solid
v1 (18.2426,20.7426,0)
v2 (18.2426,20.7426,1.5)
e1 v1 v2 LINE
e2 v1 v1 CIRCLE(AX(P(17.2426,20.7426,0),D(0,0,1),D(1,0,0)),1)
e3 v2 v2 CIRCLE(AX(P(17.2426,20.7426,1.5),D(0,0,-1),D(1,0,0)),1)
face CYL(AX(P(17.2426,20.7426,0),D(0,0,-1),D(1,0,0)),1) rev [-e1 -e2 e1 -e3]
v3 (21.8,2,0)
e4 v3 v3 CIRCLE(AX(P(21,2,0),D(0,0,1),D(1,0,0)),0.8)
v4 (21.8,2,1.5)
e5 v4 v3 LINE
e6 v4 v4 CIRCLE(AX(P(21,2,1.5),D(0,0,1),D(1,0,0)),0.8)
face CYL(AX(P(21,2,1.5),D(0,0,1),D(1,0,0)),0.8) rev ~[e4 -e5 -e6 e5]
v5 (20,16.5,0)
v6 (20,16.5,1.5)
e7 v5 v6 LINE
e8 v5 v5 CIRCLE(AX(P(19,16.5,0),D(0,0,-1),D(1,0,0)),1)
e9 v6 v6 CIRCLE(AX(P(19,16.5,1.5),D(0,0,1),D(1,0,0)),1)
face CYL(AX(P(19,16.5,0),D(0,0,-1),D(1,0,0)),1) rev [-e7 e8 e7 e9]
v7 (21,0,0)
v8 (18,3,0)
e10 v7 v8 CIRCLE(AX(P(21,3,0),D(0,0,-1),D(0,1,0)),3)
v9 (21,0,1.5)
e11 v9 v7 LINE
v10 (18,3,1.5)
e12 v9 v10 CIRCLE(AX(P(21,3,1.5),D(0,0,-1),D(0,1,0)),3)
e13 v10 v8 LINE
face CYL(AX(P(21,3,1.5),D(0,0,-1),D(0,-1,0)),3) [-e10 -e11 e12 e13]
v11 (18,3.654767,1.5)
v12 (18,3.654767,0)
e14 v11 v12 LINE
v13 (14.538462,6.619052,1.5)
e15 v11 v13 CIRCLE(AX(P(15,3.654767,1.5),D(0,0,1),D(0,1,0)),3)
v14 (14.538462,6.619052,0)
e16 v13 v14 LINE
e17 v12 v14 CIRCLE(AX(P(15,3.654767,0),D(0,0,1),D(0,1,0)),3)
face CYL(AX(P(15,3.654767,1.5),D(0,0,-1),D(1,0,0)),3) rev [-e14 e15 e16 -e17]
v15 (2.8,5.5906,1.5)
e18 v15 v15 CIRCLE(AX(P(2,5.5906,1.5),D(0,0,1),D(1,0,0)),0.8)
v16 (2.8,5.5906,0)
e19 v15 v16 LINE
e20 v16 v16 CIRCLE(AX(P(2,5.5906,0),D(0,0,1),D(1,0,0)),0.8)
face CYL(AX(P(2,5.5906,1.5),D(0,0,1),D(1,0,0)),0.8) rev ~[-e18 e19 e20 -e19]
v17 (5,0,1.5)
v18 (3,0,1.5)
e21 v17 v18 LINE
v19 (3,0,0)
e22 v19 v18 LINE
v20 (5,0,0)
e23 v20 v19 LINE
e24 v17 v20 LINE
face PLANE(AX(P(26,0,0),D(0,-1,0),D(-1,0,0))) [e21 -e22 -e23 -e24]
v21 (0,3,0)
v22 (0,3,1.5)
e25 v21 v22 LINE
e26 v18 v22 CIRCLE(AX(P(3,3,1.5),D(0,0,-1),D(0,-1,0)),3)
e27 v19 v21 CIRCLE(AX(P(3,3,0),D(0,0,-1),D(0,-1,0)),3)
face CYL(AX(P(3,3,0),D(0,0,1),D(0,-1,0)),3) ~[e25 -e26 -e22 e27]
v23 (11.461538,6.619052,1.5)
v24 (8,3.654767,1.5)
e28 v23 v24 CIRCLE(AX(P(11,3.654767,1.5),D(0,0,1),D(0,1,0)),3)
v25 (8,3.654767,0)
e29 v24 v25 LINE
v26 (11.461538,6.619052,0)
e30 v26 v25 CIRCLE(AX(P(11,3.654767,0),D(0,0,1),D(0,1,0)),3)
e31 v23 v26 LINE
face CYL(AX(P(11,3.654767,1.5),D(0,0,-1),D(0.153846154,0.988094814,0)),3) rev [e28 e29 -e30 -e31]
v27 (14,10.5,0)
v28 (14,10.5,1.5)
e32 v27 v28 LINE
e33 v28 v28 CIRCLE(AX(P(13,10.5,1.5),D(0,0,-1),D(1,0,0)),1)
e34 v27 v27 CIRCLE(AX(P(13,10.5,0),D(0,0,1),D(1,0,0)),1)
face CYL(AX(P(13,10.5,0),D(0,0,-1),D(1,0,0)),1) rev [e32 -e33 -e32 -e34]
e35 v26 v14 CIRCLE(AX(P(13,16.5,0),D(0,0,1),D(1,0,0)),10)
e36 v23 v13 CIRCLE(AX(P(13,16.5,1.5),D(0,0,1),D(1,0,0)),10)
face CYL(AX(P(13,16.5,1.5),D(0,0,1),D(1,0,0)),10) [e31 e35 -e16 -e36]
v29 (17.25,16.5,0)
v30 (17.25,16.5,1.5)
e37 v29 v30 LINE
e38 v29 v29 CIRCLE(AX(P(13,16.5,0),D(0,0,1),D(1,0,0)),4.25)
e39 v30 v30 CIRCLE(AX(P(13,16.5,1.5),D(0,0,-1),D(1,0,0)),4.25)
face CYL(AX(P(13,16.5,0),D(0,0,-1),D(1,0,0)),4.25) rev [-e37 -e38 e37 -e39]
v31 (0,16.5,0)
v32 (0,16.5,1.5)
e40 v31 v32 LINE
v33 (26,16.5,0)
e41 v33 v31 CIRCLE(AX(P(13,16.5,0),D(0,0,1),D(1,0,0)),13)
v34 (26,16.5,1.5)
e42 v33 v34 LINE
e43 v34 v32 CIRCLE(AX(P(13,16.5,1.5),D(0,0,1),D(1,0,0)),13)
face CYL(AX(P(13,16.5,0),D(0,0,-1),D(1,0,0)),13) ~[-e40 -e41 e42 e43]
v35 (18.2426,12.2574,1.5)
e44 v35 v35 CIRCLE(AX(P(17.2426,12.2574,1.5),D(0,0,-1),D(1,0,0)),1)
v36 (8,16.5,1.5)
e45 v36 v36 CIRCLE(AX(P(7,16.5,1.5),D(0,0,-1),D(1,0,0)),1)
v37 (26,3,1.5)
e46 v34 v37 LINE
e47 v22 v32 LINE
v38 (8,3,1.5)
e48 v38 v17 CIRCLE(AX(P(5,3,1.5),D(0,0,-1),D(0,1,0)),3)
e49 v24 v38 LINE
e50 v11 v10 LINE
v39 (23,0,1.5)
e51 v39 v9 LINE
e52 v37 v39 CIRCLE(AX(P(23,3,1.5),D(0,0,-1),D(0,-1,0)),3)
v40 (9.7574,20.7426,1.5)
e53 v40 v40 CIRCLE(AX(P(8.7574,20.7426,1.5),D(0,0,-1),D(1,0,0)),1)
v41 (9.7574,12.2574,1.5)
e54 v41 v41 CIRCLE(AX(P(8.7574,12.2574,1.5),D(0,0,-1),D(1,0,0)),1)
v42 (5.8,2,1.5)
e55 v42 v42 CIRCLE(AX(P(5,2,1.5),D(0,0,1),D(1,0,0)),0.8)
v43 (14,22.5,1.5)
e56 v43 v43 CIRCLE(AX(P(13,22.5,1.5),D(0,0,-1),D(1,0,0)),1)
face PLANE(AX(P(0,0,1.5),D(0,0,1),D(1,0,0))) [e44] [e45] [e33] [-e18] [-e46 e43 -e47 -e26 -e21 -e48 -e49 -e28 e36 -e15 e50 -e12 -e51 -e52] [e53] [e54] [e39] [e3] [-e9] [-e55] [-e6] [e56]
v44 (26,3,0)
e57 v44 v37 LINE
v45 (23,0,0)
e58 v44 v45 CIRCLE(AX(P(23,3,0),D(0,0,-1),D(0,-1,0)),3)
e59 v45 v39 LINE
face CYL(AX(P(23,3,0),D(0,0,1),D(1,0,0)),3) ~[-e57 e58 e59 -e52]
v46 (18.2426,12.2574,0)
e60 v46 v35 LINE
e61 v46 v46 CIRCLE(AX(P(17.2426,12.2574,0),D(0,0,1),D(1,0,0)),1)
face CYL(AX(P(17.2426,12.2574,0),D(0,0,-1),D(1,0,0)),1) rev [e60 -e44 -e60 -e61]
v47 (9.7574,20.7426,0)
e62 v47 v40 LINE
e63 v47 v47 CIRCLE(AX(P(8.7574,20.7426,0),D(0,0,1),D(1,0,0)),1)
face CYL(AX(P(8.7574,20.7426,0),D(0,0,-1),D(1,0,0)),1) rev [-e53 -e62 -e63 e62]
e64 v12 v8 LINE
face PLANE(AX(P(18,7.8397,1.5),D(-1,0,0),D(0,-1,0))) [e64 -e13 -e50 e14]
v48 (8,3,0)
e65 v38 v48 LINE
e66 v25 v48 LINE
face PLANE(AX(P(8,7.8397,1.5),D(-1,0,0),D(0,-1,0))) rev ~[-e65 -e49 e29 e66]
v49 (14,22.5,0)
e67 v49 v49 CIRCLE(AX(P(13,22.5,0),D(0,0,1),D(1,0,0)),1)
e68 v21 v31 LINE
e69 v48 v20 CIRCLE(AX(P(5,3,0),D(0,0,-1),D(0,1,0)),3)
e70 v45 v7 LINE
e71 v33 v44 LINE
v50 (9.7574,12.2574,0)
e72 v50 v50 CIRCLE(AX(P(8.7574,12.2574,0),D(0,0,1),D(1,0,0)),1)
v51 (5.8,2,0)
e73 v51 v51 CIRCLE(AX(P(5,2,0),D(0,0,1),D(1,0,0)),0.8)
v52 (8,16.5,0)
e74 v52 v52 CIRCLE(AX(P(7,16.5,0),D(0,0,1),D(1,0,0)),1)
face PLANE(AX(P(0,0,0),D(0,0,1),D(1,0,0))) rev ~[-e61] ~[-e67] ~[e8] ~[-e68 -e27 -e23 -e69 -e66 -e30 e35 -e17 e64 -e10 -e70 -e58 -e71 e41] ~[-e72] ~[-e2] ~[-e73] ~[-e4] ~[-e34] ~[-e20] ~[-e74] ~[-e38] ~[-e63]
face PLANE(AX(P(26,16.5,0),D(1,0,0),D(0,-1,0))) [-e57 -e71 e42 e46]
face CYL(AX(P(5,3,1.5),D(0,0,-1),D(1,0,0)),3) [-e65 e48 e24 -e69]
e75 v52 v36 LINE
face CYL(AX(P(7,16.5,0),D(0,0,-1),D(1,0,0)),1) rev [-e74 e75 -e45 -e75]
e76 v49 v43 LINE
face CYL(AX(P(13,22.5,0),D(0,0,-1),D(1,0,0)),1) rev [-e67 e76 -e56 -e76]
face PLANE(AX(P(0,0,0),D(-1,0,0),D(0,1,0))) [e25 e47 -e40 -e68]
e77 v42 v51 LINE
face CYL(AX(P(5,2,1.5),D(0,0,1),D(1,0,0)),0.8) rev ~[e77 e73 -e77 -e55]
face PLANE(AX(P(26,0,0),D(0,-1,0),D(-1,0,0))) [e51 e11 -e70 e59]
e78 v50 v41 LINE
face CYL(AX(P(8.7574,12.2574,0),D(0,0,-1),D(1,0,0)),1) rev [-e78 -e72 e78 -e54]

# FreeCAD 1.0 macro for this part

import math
import FreeCAD as App
import Part
import Sketcher

V = App.Vector
Q = App.Units.Quantity


def edges_at(feature, points):
    """Names of the edges that pass closest to the given points."""
    edges = feature.Shape.Edges
    near = lambda p: min(range(len(edges)), key=lambda i: edges[i].distToShape(Part.Vertex(*p))[0])
    return sorted({f"Edge{near(p) + 1}" for p in points})

doc = App.newDocument("Part")
body = doc.addObject("PartDesign::Body", "Body")

sketch1 = doc.addObject("Sketcher::SketchObject", "Sketch")
body.addObject(sketch1)
sketch1.AttachmentSupport = (doc.XY_Plane, [""])
sketch1.MapMode = "FlatFace"
sketch1.addGeometry([
    Part.ArcOfCircle(Part.Circle(V(13, 16.5, 0), V(0, 0, 1), 13), math.radians(0), math.radians(180)),
    Part.LineSegment(V(0, 16.5, 0), V(0, 0, 0)),
    Part.LineSegment(V(0, 0, 0), V(26, 0, 0)),
    Part.LineSegment(V(26, 0, 0), V(26, 16.5, 0)),
    Part.Circle(V(19, 16.5, 0), V(0, 0, 1), 1),
    Part.Circle(V(17.2, 20.7, 0), V(0, 0, 1), 1),
    Part.Circle(V(13, 22.5, 0), V(0, 0, 1), 1),
    Part.Circle(V(8.8, 20.7, 0), V(0, 0, 1), 1),
    Part.Circle(V(7, 16.5, 0), V(0, 0, 1), 1),
    Part.Circle(V(13, 16.5, 0), V(0, 0, 1), 4.2),
    Part.Circle(V(8.8, 12.3, 0), V(0, 0, 1), 1),
    Part.Circle(V(13, 10.5, 0), V(0, 0, 1), 1),
    Part.Circle(V(17.2, 12.3, 0), V(0, 0, 1), 1),
], False)
sketch1.addConstraint([
    Sketcher.Constraint("Tangent", 0, 2, 1, 1),
    Sketcher.Constraint("Coincident", 1, 2, 2, 1),
    Sketcher.Constraint("Coincident", 2, 2, 3, 1),
    Sketcher.Constraint("Tangent", 3, 2, 0, 1),
    Sketcher.Constraint("Vertical", 1),
    Sketcher.Constraint("Horizontal", 2),
    Sketcher.Constraint("Vertical", 3),
    Sketcher.Constraint("Coincident", 1, 2, -1, 1),
    Sketcher.Constraint("Coincident", 9, 3, 0, 3),
    Sketcher.Constraint("Equal", 4, 5),
    Sketcher.Constraint("Equal", 5, 6),
    Sketcher.Constraint("Equal", 6, 7),
    Sketcher.Constraint("Equal", 7, 8),
    Sketcher.Constraint("Equal", 8, 10),
    Sketcher.Constraint("Equal", 10, 11),
    Sketcher.Constraint("Equal", 11, 12),
    Sketcher.Constraint("Horizontal", 0, 3, 4, 3),
    Sketcher.Constraint("Horizontal", 5, 3, 7, 3),
    Sketcher.Constraint("Horizontal", 4, 3, 8, 3),
    Sketcher.Constraint("Horizontal", 10, 3, 12, 3),
    Sketcher.Constraint("Vertical", 0, 3, 6, 3),
    Sketcher.Constraint("Vertical", 7, 3, 10, 3),
    Sketcher.Constraint("Vertical", 9, 3, 11, 3),
    Sketcher.Constraint("Vertical", 5, 3, 12, 3),
    Sketcher.Constraint("Diameter", 4, Q("2 mm")),
    Sketcher.Constraint("Radius", 0, Q("13 mm")),
    Sketcher.Constraint("Diameter", 9, Q("8.5 mm")),
    Sketcher.Constraint("DistanceY", 1, 2, 1, 1, Q("16.5 mm")),
    Sketcher.Constraint("DistanceX", 8, 3, 4, 3, Q("12 mm")),
    Sketcher.Constraint("DistanceX", -1, 1, 4, 3, Q("19 mm")),
    Sketcher.Constraint("DistanceY", 0, 3, 6, 3, Q("6 mm")),
    Sketcher.Constraint("DistanceY", 11, 3, 0, 3, Q("6 mm")),
    Sketcher.Constraint("DistanceX", -1, 1, 5, 3, Q("17.2426 mm")),
    Sketcher.Constraint("DistanceY", -1, 1, 5, 3, Q("20.7426 mm")),
    Sketcher.Constraint("DistanceX", -1, 1, 7, 3, Q("8.7574 mm")),
    Sketcher.Constraint("DistanceY", -1, 1, 10, 3, Q("12.2574 mm")),
])
pad1 = doc.addObject("PartDesign::Pad", "Pad")
body.addObject(pad1)
pad1.Profile = sketch1
pad1.Length = 1.5

sketch2 = doc.addObject("Sketcher::SketchObject", "Sketch001")
body.addObject(sketch2)
sketch2.AttachmentSupport = (doc.XY_Plane, [""])
sketch2.MapMode = "FlatFace"
sketch2.AttachmentOffset = App.Placement(V(0, 0, 1.5), App.Rotation())
sketch2.addGeometry([
    Part.Circle(V(2, 5.6, 0), V(0, 0, 1), 0.8),
    Part.Circle(V(5, 2, 0), V(0, 0, 1), 0.8),
    Part.Circle(V(21, 2, 0), V(0, 0, 1), 0.8),
    Part.ArcOfCircle(Part.Circle(V(13, 16.5, 0), V(0, 0, 1), 10), math.radians(-120), math.radians(-60)),
    Part.LineSegment(V(8, 7.8, 0), V(8, 0, 0)),
    Part.LineSegment(V(8, 0, 0), V(18, 0, 0)),
    Part.LineSegment(V(18, 0, 0), V(18, 7.8, 0)),
], False)
sketch2.addConstraint([
    Sketcher.Constraint("Coincident", 3, 1, 4, 1),
    Sketcher.Constraint("Coincident", 4, 2, 5, 1),
    Sketcher.Constraint("Coincident", 5, 2, 6, 1),
    Sketcher.Constraint("Coincident", 6, 2, 3, 2),
    Sketcher.Constraint("Vertical", 4),
    Sketcher.Constraint("Horizontal", 5),
    Sketcher.Constraint("Vertical", 6),
    Sketcher.Constraint("Equal", 0, 1),
    Sketcher.Constraint("Equal", 1, 2),
    Sketcher.Constraint("PointOnObject", 4, 2, -1),
    Sketcher.Constraint("Horizontal", 1, 3, 2, 3),
    Sketcher.Constraint("Horizontal", 3, 1, 6, 2),
    Sketcher.Constraint("Radius", 3, Q("10 mm")),
    Sketcher.Constraint("DistanceX", 0, 3, 1, 3, Q("3 mm")),
    Sketcher.Constraint("DistanceX", 1, 3, 3, 1, Q("3 mm")),
    Sketcher.Constraint("DistanceX", 5, 2, 2, 3, Q("3 mm")),
    Sketcher.Constraint("Diameter", 0, Q("1.6 mm")),
    Sketcher.Constraint("DistanceX", 5, 1, 5, 2, Q("10 mm")),
    Sketcher.Constraint("DistanceX", -1, 1, 0, 3, Q("2 mm")),
    Sketcher.Constraint("DistanceY", -1, 1, 1, 3, Q("2 mm")),
    Sketcher.Constraint("DistanceY", -1, 1, 3, 3, Q("16.5 mm")),
    Sketcher.Constraint("DistanceY", -1, 1, 0, 3, Q("5.5906 mm")),
])
pocket1 = doc.addObject("PartDesign::Pocket", "Pocket")
body.addObject(pocket1)
pocket1.Profile = sketch2
pocket1.Type = "ThroughAll"
doc.recompute()

fillet = doc.addObject("PartDesign::Fillet", "Fillet")
body.addObject(fillet)
fillet.Base = (pocket1, edges_at(pocket1, [
    (0, 0, 0.75),
    (8, 0, 0.75),
    (8, 7.84, 0.75),
    (18, 7.84, 0.75),
    (18, 0, 0.75),
    (26, 0, 0.75),
]))
fillet.Radius = 3

doc.recompute()
